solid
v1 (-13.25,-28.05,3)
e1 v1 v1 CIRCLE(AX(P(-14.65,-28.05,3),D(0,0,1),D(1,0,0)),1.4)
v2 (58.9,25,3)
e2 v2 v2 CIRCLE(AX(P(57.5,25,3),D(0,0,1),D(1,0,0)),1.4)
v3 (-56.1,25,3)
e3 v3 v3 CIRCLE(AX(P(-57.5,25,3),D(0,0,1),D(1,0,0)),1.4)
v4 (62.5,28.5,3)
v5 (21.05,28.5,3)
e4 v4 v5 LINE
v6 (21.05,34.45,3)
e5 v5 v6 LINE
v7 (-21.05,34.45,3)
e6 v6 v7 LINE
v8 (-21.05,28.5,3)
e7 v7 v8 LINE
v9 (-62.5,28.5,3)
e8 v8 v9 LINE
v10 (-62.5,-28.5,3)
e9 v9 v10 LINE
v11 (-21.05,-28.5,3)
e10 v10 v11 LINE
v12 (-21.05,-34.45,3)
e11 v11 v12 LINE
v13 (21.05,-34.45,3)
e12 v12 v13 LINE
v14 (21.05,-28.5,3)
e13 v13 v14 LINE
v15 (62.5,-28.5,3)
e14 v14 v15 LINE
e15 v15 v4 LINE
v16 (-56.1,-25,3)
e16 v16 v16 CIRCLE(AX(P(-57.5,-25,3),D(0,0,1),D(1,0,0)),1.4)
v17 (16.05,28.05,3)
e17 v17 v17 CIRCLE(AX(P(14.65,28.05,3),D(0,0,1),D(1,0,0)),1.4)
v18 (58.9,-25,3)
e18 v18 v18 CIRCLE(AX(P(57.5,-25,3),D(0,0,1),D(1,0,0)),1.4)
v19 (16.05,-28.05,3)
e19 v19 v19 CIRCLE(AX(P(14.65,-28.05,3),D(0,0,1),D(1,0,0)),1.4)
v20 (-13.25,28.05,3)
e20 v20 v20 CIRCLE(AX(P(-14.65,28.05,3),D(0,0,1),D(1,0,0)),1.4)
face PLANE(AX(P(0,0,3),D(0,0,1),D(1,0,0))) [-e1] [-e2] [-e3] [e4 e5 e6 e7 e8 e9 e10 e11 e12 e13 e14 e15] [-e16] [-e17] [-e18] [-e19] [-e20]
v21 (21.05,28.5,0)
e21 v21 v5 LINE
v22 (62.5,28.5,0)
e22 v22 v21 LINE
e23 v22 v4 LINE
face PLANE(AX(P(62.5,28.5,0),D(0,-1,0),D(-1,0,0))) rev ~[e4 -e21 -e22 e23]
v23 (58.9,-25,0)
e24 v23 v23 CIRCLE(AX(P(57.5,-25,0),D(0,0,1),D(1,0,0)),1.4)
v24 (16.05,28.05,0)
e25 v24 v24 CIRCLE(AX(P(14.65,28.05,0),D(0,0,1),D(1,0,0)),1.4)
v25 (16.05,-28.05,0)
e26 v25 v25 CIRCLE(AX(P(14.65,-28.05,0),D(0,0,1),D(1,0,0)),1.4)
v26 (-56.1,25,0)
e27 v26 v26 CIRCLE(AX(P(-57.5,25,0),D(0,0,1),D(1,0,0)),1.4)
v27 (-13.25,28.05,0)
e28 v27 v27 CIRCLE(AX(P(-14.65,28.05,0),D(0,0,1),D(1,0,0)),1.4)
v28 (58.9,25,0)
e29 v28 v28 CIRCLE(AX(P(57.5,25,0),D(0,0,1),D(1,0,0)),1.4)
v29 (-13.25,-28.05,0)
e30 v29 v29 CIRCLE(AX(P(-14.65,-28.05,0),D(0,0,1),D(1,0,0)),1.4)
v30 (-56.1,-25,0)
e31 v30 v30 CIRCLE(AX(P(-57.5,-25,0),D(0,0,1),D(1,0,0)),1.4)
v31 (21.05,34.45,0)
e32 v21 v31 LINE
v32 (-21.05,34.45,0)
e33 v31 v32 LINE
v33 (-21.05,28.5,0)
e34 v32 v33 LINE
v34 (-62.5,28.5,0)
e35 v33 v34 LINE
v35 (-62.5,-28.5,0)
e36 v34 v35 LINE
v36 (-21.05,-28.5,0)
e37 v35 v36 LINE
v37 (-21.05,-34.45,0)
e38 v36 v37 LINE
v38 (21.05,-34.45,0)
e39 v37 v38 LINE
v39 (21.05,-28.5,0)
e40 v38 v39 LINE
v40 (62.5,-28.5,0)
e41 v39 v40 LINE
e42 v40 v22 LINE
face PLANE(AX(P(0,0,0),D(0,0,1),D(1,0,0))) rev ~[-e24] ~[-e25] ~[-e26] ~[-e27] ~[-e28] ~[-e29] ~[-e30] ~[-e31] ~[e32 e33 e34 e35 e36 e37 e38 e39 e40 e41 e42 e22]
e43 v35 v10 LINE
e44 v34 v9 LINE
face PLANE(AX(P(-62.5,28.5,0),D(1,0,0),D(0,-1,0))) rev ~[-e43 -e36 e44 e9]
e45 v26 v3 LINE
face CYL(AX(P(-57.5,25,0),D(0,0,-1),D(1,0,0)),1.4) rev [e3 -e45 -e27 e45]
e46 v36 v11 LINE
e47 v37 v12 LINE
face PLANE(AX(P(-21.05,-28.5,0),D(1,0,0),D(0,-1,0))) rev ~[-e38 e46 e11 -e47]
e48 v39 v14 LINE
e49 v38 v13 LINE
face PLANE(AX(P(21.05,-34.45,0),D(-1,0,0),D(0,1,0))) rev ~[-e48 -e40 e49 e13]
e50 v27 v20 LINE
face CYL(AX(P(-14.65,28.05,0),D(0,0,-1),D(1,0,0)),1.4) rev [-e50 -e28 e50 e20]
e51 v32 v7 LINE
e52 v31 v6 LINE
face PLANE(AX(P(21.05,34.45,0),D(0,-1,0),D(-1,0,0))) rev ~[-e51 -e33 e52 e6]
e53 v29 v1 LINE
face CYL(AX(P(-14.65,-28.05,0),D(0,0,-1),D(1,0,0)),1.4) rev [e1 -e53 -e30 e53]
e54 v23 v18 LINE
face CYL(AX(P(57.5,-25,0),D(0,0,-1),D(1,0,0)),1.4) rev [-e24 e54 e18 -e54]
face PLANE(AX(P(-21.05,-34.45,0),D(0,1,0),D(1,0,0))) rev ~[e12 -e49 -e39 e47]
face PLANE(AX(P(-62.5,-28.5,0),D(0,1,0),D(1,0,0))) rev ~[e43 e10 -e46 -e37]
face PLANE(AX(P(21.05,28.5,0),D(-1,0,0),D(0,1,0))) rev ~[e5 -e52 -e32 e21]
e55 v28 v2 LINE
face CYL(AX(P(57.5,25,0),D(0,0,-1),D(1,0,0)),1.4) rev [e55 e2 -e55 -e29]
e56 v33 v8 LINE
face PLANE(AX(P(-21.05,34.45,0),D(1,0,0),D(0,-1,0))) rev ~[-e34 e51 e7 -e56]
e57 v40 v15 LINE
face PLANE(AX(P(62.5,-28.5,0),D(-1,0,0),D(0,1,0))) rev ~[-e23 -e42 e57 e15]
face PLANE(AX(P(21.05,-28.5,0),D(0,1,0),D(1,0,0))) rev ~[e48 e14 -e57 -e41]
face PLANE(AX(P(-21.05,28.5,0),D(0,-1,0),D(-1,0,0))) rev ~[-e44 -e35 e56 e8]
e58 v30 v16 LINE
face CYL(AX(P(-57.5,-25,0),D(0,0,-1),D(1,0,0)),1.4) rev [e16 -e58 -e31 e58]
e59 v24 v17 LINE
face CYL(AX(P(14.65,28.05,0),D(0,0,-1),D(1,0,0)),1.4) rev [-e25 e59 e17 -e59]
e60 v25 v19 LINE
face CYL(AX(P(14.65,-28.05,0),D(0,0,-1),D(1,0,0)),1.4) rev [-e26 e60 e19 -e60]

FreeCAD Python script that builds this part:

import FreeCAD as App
import Part
import Sketcher
from FreeCAD import Vector
Q = App.Units.Quantity

doc = App.newDocument("Part")
body = doc.addObject("PartDesign::Body", "Body")

sketch1 = body.newObject("Sketcher::SketchObject", "Sketch")
sketch1.AttachmentSupport = (doc.getObject("XY_Plane"), [""])
sketch1.MapMode = "FlatFace"
sketch1.addGeometry(Part.LineSegment(Vector(-21.1, 28.5, 0), Vector(-62.5, 28.5, 0)), False)
sketch1.addGeometry(Part.LineSegment(Vector(-62.5, 28.5, 0), Vector(-62.5, -28.5, 0)), False)
sketch1.addGeometry(Part.LineSegment(Vector(-62.5, -28.5, 0), Vector(-21.1, -28.5, 0)), False)
sketch1.addGeometry(Part.LineSegment(Vector(-21.1, -28.5, 0), Vector(-21.1, -34.5, 0)), False)
sketch1.addGeometry(Part.LineSegment(Vector(-21.1, -34.5, 0), Vector(21.1, -34.5, 0)), False)
sketch1.addGeometry(Part.LineSegment(Vector(21.1, -34.5, 0), Vector(21.1, -28.5, 0)), False)
sketch1.addGeometry(Part.LineSegment(Vector(21.1, -28.5, 0), Vector(62.5, -28.5, 0)), False)
sketch1.addGeometry(Part.LineSegment(Vector(62.5, -28.5, 0), Vector(62.5, 28.5, 0)), False)
sketch1.addGeometry(Part.LineSegment(Vector(62.5, 28.5, 0), Vector(21.1, 28.5, 0)), False)
sketch1.addGeometry(Part.LineSegment(Vector(21.1, 28.5, 0), Vector(21.1, 34.5, 0)), False)
sketch1.addGeometry(Part.LineSegment(Vector(21.1, 34.5, 0), Vector(-21.1, 34.5, 0)), False)
sketch1.addGeometry(Part.LineSegment(Vector(-21.1, 34.5, 0), Vector(-21.1, 28.5, 0)), False)
sketch1.addGeometry(Part.Circle(Vector(-57.5, -25, 0), Vector(0, 0, 1), 1.4), False)
sketch1.addGeometry(Part.Circle(Vector(-14.7, -28.1, 0), Vector(0, 0, 1), 1.4), False)
sketch1.addGeometry(Part.Circle(Vector(14.7, -28.1, 0), Vector(0, 0, 1), 1.4), False)
sketch1.addGeometry(Part.Circle(Vector(57.5, -25, 0), Vector(0, 0, 1), 1.4), False)
sketch1.addGeometry(Part.Circle(Vector(-57.5, 25, 0), Vector(0, 0, 1), 1.4), False)
sketch1.addGeometry(Part.Circle(Vector(-14.7, 28.1, 0), Vector(0, 0, 1), 1.4), False)
sketch1.addGeometry(Part.Circle(Vector(14.7, 28.1, 0), Vector(0, 0, 1), 1.4), False)
sketch1.addGeometry(Part.Circle(Vector(57.5, 25, 0), Vector(0, 0, 1), 1.4), False)
sketch1.addConstraint(Sketcher.Constraint("Coincident", 0, 2, 1, 1))
sketch1.addConstraint(Sketcher.Constraint("Coincident", 1, 2, 2, 1))
sketch1.addConstraint(Sketcher.Constraint("Coincident", 2, 2, 3, 1))
sketch1.addConstraint(Sketcher.Constraint("Coincident", 3, 2, 4, 1))
sketch1.addConstraint(Sketcher.Constraint("Coincident", 4, 2, 5, 1))
sketch1.addConstraint(Sketcher.Constraint("Coincident", 5, 2, 6, 1))
sketch1.addConstraint(Sketcher.Constraint("Coincident", 6, 2, 7, 1))
sketch1.addConstraint(Sketcher.Constraint("Coincident", 7, 2, 8, 1))
sketch1.addConstraint(Sketcher.Constraint("Coincident", 8, 2, 9, 1))
sketch1.addConstraint(Sketcher.Constraint("Coincident", 9, 2, 10, 1))
sketch1.addConstraint(Sketcher.Constraint("Coincident", 10, 2, 11, 1))
sketch1.addConstraint(Sketcher.Constraint("Coincident", 11, 2, 0, 1))
sketch1.addConstraint(Sketcher.Constraint("Horizontal", 0))
sketch1.addConstraint(Sketcher.Constraint("Vertical", 1))
sketch1.addConstraint(Sketcher.Constraint("Horizontal", 2))
sketch1.addConstraint(Sketcher.Constraint("Vertical", 3))
sketch1.addConstraint(Sketcher.Constraint("Horizontal", 4))
sketch1.addConstraint(Sketcher.Constraint("Vertical", 5))
sketch1.addConstraint(Sketcher.Constraint("Horizontal", 6))
sketch1.addConstraint(Sketcher.Constraint("Vertical", 7))
sketch1.addConstraint(Sketcher.Constraint("Horizontal", 8))
sketch1.addConstraint(Sketcher.Constraint("Vertical", 9))
sketch1.addConstraint(Sketcher.Constraint("Horizontal", 10))
sketch1.addConstraint(Sketcher.Constraint("Vertical", 11))
sketch1.addConstraint(Sketcher.Constraint("Equal", 12, 13))
sketch1.addConstraint(Sketcher.Constraint("Equal", 13, 14))
sketch1.addConstraint(Sketcher.Constraint("Equal", 14, 15))
sketch1.addConstraint(Sketcher.Constraint("Equal", 15, 16))
sketch1.addConstraint(Sketcher.Constraint("Equal", 16, 17))
sketch1.addConstraint(Sketcher.Constraint("Equal", 17, 18))
sketch1.addConstraint(Sketcher.Constraint("Equal", 18, 19))
sketch1.addConstraint(Sketcher.Constraint("Symmetric", 15, 3, 16, 3, -1, 1))
sketch1.addConstraint(Sketcher.Constraint("Symmetric", 14, 3, 17, 3, -1, 1))
sketch1.addConstraint(Sketcher.Constraint("Symmetric", 13, 3, 18, 3, -1, 1))
sketch1.addConstraint(Sketcher.Constraint("Symmetric", 12, 3, 19, 3, -1, 1))
sketch1.addConstraint(Sketcher.Constraint("Symmetric", 0, 2, 6, 2, -1, 1))
sketch1.addConstraint(Sketcher.Constraint("Symmetric", 2, 2, 8, 2, -1, 1))
sketch1.addConstraint(Sketcher.Constraint("Symmetric", 4, 2, 10, 2, -1, 1))
sketch1.addConstraint(Sketcher.Constraint("Symmetric", 13, 3, 14, 3, -2))
sketch1.addConstraint(Sketcher.Constraint("Symmetric", 12, 3, 15, 3, -2))
sketch1.addConstraint(Sketcher.Constraint("Symmetric", 2, 2, 5, 2, -2))
sketch1.addConstraint(Sketcher.Constraint("Diameter", 12, Q("2.8 mm")))
sketch1.addConstraint(Sketcher.Constraint("DistanceY", 1, 2, 1, 1, Q("57 mm")))
sketch1.addConstraint(Sketcher.Constraint("DistanceX", 4, 1, 4, 2, Q("42.1 mm")))
sketch1.addConstraint(Sketcher.Constraint("DistanceY", 12, 3, -1, 1, Q("25 mm")))
sketch1.addConstraint(Sketcher.Constraint("DistanceX", 12, 3, 15, 3, Q("115 mm")))
sketch1.addConstraint(Sketcher.Constraint("DistanceX", 0, 2, 16, 3, Q("5 mm")))
sketch1.addConstraint(Sketcher.Constraint("DistanceY", 3, 2, 3, 1, Q("5.95 mm")))
sketch1.addConstraint(Sketcher.Constraint("DistanceX", 13, 3, 14, 3, Q("29.3 mm")))
sketch1.addConstraint(Sketcher.Constraint("DistanceY", 13, 3, 17, 3, Q("56.1 mm")))
pad1 = body.newObject("PartDesign::Pad", "Pad")
pad1.Profile = sketch1
pad1.Length = 3

doc.recompute()
